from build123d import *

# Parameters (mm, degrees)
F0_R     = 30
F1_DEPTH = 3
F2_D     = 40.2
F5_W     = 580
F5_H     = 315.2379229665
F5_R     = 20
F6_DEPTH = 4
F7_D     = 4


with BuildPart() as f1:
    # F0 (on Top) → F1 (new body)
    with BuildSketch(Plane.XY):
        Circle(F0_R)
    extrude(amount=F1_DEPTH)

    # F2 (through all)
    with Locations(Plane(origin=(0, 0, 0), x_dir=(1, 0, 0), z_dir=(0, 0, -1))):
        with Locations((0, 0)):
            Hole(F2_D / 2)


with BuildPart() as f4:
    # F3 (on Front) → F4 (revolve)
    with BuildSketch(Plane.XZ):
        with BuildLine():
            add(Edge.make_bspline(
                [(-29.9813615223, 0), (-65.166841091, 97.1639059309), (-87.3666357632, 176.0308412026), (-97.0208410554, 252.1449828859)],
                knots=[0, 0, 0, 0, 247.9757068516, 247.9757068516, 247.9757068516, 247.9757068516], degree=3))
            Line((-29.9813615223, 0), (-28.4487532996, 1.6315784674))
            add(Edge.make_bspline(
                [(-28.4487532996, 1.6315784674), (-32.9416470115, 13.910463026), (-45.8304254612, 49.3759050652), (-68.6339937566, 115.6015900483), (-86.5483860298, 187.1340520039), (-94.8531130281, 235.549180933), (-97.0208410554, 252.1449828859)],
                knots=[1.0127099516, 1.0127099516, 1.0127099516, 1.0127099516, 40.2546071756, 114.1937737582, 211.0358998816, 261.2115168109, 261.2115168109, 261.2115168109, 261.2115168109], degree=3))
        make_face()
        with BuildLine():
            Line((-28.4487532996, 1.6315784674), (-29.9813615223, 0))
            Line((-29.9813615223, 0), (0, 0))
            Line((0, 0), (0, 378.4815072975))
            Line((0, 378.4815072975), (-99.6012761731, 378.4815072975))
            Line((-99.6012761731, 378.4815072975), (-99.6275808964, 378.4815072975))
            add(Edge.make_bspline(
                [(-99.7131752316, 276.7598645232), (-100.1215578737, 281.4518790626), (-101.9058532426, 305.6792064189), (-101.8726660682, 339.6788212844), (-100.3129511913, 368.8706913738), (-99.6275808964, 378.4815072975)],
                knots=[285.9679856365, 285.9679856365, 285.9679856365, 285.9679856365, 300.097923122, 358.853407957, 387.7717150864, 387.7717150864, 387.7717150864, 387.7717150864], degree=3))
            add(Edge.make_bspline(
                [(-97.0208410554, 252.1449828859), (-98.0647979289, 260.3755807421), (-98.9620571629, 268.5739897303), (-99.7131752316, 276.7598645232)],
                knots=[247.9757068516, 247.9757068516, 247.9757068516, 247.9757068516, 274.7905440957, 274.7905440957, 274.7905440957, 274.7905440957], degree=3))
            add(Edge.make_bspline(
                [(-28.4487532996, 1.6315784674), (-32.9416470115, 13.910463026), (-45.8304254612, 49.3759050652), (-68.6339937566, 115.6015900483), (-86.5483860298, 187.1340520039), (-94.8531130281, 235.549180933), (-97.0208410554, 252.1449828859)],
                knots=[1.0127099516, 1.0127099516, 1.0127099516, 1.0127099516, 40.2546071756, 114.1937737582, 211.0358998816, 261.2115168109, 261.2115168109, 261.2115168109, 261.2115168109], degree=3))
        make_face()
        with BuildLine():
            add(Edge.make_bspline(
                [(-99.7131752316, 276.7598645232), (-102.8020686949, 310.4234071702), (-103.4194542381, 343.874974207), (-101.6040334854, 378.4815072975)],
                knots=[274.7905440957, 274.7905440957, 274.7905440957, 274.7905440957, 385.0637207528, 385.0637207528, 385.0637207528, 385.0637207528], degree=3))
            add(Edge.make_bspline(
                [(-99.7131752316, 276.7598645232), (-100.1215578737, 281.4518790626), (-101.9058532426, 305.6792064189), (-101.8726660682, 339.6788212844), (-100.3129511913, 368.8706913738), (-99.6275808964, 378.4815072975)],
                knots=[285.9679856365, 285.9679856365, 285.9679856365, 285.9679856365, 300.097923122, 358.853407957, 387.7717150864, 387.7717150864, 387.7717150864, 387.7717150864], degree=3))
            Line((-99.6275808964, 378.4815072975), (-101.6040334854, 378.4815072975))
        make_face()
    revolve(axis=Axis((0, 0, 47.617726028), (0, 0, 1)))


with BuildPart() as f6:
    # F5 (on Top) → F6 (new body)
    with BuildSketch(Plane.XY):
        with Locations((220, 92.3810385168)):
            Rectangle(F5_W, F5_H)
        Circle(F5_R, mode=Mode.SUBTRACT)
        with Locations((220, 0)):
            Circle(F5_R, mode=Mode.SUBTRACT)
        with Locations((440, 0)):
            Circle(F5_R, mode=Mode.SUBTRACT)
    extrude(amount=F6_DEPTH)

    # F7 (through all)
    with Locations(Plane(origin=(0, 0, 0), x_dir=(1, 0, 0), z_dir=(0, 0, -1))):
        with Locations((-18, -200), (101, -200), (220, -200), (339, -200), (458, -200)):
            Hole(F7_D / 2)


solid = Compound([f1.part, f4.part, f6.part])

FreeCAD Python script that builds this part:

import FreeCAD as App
import Part
import Sketcher

V = App.Vector
Q = App.Units.Quantity

doc = App.newDocument("Part")
body = doc.addObject("PartDesign::Body", "Body")

# Sketch on XY plane
sketch1 = body.newObject("Sketcher::SketchObject", "Sketch")
sketch1.AttachmentSupport = (doc.getObject("XY_Plane"), [""])
sketch1.MapMode = "FlatFace"
sketch1.addGeometry(Part.Circle(V(0, 0, 0), V(0, 0, 1), 30), False)
sketch1.addConstraint([
    Sketcher.Constraint("Coincident", 0, 3, -1, 1),
    Sketcher.Constraint("Diameter", 0, Q("60 mm")),
])
pad1 = body.newObject("PartDesign::Pad", "Pad")
pad1.Profile = sketch1
pad1.Length = 3

# Sketch on XY plane
sketch2 = body.newObject("Sketcher::SketchObject", "Sketch001")
sketch2.AttachmentSupport = (doc.getObject("XY_Plane"), [""])
sketch2.MapMode = "FlatFace"
sketch2.addGeometry(Part.Circle(V(0, 0, 0), V(0, 0, 1), 20.1), False)
sketch2.addConstraint([
    Sketcher.Constraint("Coincident", 0, 3, -1, 1),
    Sketcher.Constraint("Diameter", 0, Q("40.2 mm")),
])
doc.recompute()
hole = body.newObject("PartDesign::Hole", "Hole")
hole.Profile = sketch2
hole.ThreadType = "None"
hole.Diameter = 40.2
hole.DepthType = "ThroughAll"
hole.Reversed = True
body2 = doc.addObject("PartDesign::Body", "Body001")

# Sketch on XZ plane
sketch3 = body2.newObject("Sketcher::SketchObject", "Sketch002")
sketch3.AttachmentSupport = (doc.getObject("XZ_Plane001"), [""])
sketch3.MapMode = "FlatFace"
sketch3.addGeometry([
    Part.LineSegment(V(0, 378.481507, 0), V(-101.604033, 378.481507, 0)),  # 0
    Part.BSplineCurve([V(-99.713175, 276.759865, 0), V(-102.802069, 310.423407, 0), V(-103.419454, 343.874974, 0), V(-101.604033, 378.481507, 0)], [4, 4], [274.790544096, 385.063720753], False, 3, [1, 1, 1, 1], False),  # 1
    Part.BSplineCurve([V(-99.713175, 276.759865, 0), V(-92.015939, 192.873434, 0), V(-68.971621, 107.670719, 0), V(-29.981362, 0, 0)], [4, 4], [247.975706852, 522.766250948], False, 3, [1, 1, 1, 1], False),  # 2
    Part.LineSegment(V(-29.981362, 0, 0), V(0, 0, 0)),  # 3
    Part.LineSegment(V(0, 0, 0), V(0, 378.481507, 0)),  # 4
], False)
sketch3.addConstraint([
    Sketcher.Constraint("Block", 1),
    Sketcher.Constraint("Block", 2),
    Sketcher.Constraint("Coincident", 0, 2, 1, 2),
    Sketcher.Constraint("Coincident", 2, 2, 3, 1),
    Sketcher.Constraint("Coincident", 3, 2, 4, 1),
    Sketcher.Constraint("Coincident", 4, 2, 0, 1),
    Sketcher.Constraint("Horizontal", 0),
    Sketcher.Constraint("Horizontal", 3),
    Sketcher.Constraint("Vertical", 4),
    Sketcher.Constraint("PointOnObject", 4, 2, -2),
])
revolution = body2.newObject("PartDesign::Revolution", "Revolution")
revolution.Profile = sketch3
revolution.ReferenceAxis = (sketch3, ["V_Axis"])
revolution.Angle = 360
body3 = doc.addObject("PartDesign::Body", "Body002")

# Sketch on XY plane
sketch4 = body3.newObject("Sketcher::SketchObject", "Sketch003")
sketch4.AttachmentSupport = (doc.getObject("XY_Plane002"), [""])
sketch4.MapMode = "FlatFace"
sketch4.addGeometry([
    Part.LineSegment(V(-70, 250, 0), V(-70, -65.237923, 0)),  # 0
    Part.LineSegment(V(-70, -65.237923, 0), V(510, -65.237923, 0)),  # 1
    Part.LineSegment(V(510, -65.237923, 0), V(510, 250, 0)),  # 2
    Part.LineSegment(V(510, 250, 0), V(-70, 250, 0)),  # 3
    Part.Circle(V(0, 0, 0), V(0, 0, 1), 20),  # 4
    Part.Circle(V(220, 0, 0), V(0, 0, 1), 20),  # 5
    Part.Circle(V(440, 0, 0), V(0, 0, 1), 20),  # 6
], False)
sketch4.addConstraint([
    Sketcher.Constraint("Coincident", 0, 2, 1, 1),
    Sketcher.Constraint("Coincident", 1, 2, 2, 1),
    Sketcher.Constraint("Coincident", 2, 2, 3, 1),
    Sketcher.Constraint("Coincident", 3, 2, 0, 1),
    Sketcher.Constraint("Vertical", 0),
    Sketcher.Constraint("Horizontal", 1),
    Sketcher.Constraint("Vertical", 2),
    Sketcher.Constraint("Horizontal", 3),
    Sketcher.Constraint("Coincident", 4, 3, -1, 1),
    Sketcher.Constraint("Equal", 4, 5),
    Sketcher.Constraint("Equal", 5, 6),
    Sketcher.Constraint("PointOnObject", 5, 3, -1),
    Sketcher.Constraint("PointOnObject", 6, 3, -1),
    Sketcher.Constraint("Diameter", 4, Q("40 mm")),
    Sketcher.Constraint("DistanceX", 1, 1, 1, 2, Q("580 mm")),
    Sketcher.Constraint("DistanceX", -1, 1, 5, 3, Q("220 mm")),
    Sketcher.Constraint("DistanceX", -1, 1, 6, 3, Q("440 mm")),
    Sketcher.Constraint("DistanceX", 0, 2, -1, 1, Q("70 mm")),
    Sketcher.Constraint("DistanceY", -1, 1, 2, 2, Q("250 mm")),
    Sketcher.Constraint("DistanceY", 0, 2, 0, 1, Q("315.237923 mm")),
])
pad2 = body3.newObject("PartDesign::Pad", "Pad001")
pad2.Profile = sketch4
pad2.Length = 4

# Sketch on XY plane
sketch5 = body3.newObject("Sketcher::SketchObject", "Sketch004")
sketch5.AttachmentSupport = (doc.getObject("XY_Plane002"), [""])
sketch5.MapMode = "FlatFace"
sketch5.addGeometry([
    Part.Circle(V(-18, 200, 0), V(0, 0, 1), 2),  # 0
    Part.Circle(V(101, 200, 0), V(0, 0, 1), 2),  # 1
    Part.Circle(V(220, 200, 0), V(0, 0, 1), 2),  # 2
    Part.Circle(V(339, 200, 0), V(0, 0, 1), 2),  # 3
    Part.Circle(V(458, 200, 0), V(0, 0, 1), 2),  # 4
], False)
sketch5.addConstraint([
    Sketcher.Constraint("Equal", 0, 1),
    Sketcher.Constraint("Equal", 1, 2),
    Sketcher.Constraint("Equal", 2, 3),
    Sketcher.Constraint("Equal", 3, 4),
    Sketcher.Constraint("Horizontal", 0, 3, 1, 3),
    Sketcher.Constraint("Horizontal", 1, 3, 2, 3),
    Sketcher.Constraint("Horizontal", 2, 3, 3, 3),
    Sketcher.Constraint("Horizontal", 3, 3, 4, 3),
    Sketcher.Constraint("Diameter", 0, Q("4 mm")),
    Sketcher.Constraint("DistanceX", 0, 3, -1, 1, Q("18 mm")),
    Sketcher.Constraint("DistanceY", -1, 1, 0, 3, Q("200 mm")),
    Sketcher.Constraint("DistanceX", -1, 1, 1, 3, Q("101 mm")),
    Sketcher.Constraint("DistanceX", -1, 1, 2, 3, Q("220 mm")),
    Sketcher.Constraint("DistanceX", -1, 1, 3, 3, Q("339 mm")),
    Sketcher.Constraint("DistanceX", -1, 1, 4, 3, Q("458 mm")),
])
doc.recompute()
hole2 = body3.newObject("PartDesign::Hole", "Hole001")
hole2.Profile = sketch5
hole2.ThreadType = "None"
hole2.Diameter = 4
hole2.DepthType = "ThroughAll"
hole2.Reversed = True

doc.recompute()
